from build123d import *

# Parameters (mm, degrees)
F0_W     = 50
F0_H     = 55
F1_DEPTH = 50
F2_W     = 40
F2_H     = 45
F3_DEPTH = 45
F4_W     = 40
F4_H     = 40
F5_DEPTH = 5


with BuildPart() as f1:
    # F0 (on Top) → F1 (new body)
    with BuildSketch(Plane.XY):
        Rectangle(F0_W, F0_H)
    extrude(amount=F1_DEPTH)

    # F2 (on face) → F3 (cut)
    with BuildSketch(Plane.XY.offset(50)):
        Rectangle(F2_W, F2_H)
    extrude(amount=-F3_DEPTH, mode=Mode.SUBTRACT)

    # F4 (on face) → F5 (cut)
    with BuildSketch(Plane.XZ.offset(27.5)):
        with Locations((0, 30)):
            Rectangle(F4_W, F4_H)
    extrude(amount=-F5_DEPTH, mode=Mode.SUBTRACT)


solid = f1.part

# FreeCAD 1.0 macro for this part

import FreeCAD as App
import Part
import Sketcher
Q = App.Units.Quantity


def add_polygon(sketch, points):
    """Adds a closed chain of lines whose ends are joined by coincident constraints."""
    first, n = sketch.GeometryCount, len(points)
    for a, b in zip(points, points[1:] + points[:1]):
        sketch.addGeometry(Part.LineSegment(App.Vector(*a, 0), App.Vector(*b, 0)), False)
    for i in range(n):
        sketch.addConstraint(Sketcher.Constraint("Coincident", first + i, 2, first + (i + 1) % n, 1))

doc = App.newDocument("Part")
body = doc.addObject("PartDesign::Body", "Body")

sketch1 = doc.addObject("Sketcher::SketchObject", "Sketch")
body.addObject(sketch1)
sketch1.AttachmentSupport = (doc.XY_Plane, [""])
sketch1.MapMode = "FlatFace"
add_polygon(sketch1, [(-25, 28), (-25, -28), (25, -28), (25, 28)])
sketch1.addConstraint([
    Sketcher.Constraint("Vertical", 0),
    Sketcher.Constraint("Horizontal", 1),
    Sketcher.Constraint("Vertical", 2),
    Sketcher.Constraint("Horizontal", 3),
    Sketcher.Constraint("Symmetric", 0, 2, 2, 2, -1, 1),
    Sketcher.Constraint("DistanceX", 1, 1, 1, 2, Q("50 mm")),
    Sketcher.Constraint("DistanceY", 0, 2, 0, 1, Q("55 mm")),
])
pad1 = doc.addObject("PartDesign::Pad", "Pad")
body.addObject(pad1)
pad1.Profile = sketch1
pad1.Length = 50

sketch2 = doc.addObject("Sketcher::SketchObject", "Sketch001")
body.addObject(sketch2)
sketch2.AttachmentSupport = (doc.XY_Plane, [""])
sketch2.MapMode = "FlatFace"
sketch2.AttachmentOffset = App.Placement(App.Vector(0, 0, 50), App.Rotation())
add_polygon(sketch2, [(-20, 22), (-20, -22), (20, -22), (20, 22)])
sketch2.addConstraint([
    Sketcher.Constraint("Vertical", 0),
    Sketcher.Constraint("Horizontal", 1),
    Sketcher.Constraint("Vertical", 2),
    Sketcher.Constraint("Horizontal", 3),
    Sketcher.Constraint("Symmetric", 0, 2, 2, 2, -1, 1),
    Sketcher.Constraint("DistanceX", 1, 1, 1, 2, Q("40 mm")),
    Sketcher.Constraint("DistanceY", 0, 2, 0, 1, Q("45 mm")),
])
pocket1 = doc.addObject("PartDesign::Pocket", "Pocket")
body.addObject(pocket1)
pocket1.Profile = sketch2
pocket1.Length = 45

sketch3 = doc.addObject("Sketcher::SketchObject", "Sketch002")
body.addObject(sketch3)
sketch3.AttachmentSupport = (doc.XZ_Plane, [""])
sketch3.MapMode = "FlatFace"
sketch3.AttachmentOffset = App.Placement(App.Vector(0, 0, 27.5), App.Rotation())
add_polygon(sketch3, [(-20, 50), (-20, 10), (20, 10), (20, 50)])
sketch3.addConstraint([
    Sketcher.Constraint("Vertical", 0),
    Sketcher.Constraint("Horizontal", 1),
    Sketcher.Constraint("Vertical", 2),
    Sketcher.Constraint("Horizontal", 3),
    Sketcher.Constraint("Equal", 3, 0),
    Sketcher.Constraint("DistanceX", 1, 1, 1, 2, Q("40 mm")),
    Sketcher.Constraint("DistanceX", 0, 2, -1, 1, Q("20 mm")),
    Sketcher.Constraint("DistanceY", -1, 1, 0, 2, Q("10 mm")),
])
pocket2 = doc.addObject("PartDesign::Pocket", "Pocket001")
body.addObject(pocket2)
pocket2.Profile = sketch3
pocket2.Length = 5

doc.recompute()
